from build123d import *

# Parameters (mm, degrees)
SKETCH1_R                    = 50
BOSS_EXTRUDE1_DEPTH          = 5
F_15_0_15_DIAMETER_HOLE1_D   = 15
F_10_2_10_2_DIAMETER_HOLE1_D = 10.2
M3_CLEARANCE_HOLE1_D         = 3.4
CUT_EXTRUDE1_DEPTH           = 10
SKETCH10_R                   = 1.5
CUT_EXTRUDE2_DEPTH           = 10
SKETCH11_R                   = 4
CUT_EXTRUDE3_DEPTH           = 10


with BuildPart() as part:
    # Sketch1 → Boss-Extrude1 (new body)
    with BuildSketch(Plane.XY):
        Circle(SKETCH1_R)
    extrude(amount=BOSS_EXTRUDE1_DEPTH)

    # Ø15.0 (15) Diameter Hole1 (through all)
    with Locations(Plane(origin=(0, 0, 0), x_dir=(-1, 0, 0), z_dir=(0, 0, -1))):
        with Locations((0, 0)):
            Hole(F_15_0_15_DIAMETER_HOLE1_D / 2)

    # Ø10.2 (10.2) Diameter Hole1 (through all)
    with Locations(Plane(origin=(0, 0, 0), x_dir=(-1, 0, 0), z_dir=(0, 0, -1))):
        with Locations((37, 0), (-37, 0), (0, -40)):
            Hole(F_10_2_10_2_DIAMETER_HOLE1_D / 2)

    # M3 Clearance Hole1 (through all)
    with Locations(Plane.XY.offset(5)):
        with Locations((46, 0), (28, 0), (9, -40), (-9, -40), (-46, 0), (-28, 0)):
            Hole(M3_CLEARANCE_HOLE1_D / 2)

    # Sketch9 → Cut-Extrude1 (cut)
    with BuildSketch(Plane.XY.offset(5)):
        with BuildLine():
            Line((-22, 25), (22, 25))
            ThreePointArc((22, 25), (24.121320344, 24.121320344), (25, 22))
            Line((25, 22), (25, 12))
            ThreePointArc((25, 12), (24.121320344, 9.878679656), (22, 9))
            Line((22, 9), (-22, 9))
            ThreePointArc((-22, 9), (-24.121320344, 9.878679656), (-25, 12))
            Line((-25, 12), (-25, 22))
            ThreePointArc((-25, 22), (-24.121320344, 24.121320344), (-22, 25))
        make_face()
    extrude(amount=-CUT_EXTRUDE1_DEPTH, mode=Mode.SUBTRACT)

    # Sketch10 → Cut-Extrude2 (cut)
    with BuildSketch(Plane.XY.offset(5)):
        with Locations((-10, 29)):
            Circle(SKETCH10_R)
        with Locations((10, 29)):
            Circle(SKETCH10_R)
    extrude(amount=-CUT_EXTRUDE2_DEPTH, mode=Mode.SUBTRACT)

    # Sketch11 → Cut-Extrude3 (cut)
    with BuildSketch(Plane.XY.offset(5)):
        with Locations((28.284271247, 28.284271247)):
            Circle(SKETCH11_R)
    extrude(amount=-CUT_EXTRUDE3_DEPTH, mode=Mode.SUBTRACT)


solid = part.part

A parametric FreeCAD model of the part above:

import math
import FreeCAD as App
import Part
import Sketcher

V = App.Vector

doc = App.newDocument("Part")
body = doc.addObject("PartDesign::Body", "Body")

sketch1 = doc.addObject("Sketcher::SketchObject", "Sketch")
body.addObject(sketch1)
sketch1.AttachmentSupport = (doc.XY_Plane, [""])
sketch1.MapMode = "FlatFace"
sketch1.addGeometry(Part.Circle(V(0, 0, 0), V(0, 0, 1), 50), False)
sketch1.addConstraint([
    Sketcher.Constraint("Coincident", 0, 3, -1, 1),
    Sketcher.Constraint("Diameter", 0, 100.0),
])
pad1 = doc.addObject("PartDesign::Pad", "Pad")
body.addObject(pad1)
pad1.Profile = sketch1
pad1.Length = 5

sketch2 = doc.addObject("Sketcher::SketchObject", "Sketch001")
body.addObject(sketch2)
sketch2.AttachmentSupport = (doc.XY_Plane, [""])
sketch2.MapMode = "FlatFace"
sketch2.addGeometry(Part.Circle(V(0, 0, 0), V(0, 0, 1), 8), False)
sketch2.addConstraint([
    Sketcher.Constraint("Coincident", 0, 3, -1, 1),
    Sketcher.Constraint("Diameter", 0, 15.0),
])
doc.recompute()
hole = doc.addObject("PartDesign::Hole", "Hole")
body.addObject(hole)
hole.Profile = sketch2
hole.ThreadType = "None"
hole.Diameter = 15
hole.DepthType = "ThroughAll"
hole.Reversed = True

sketch3 = doc.addObject("Sketcher::SketchObject", "Sketch002")
body.addObject(sketch3)
sketch3.AttachmentSupport = (doc.XY_Plane, [""])
sketch3.MapMode = "FlatFace"
sketch3.addGeometry([
    Part.Circle(V(-37, 0, 0), V(0, 0, 1), 5),
    Part.Circle(V(37, 0, 0), V(0, 0, 1), 5),
    Part.Circle(V(0, -40, 0), V(0, 0, 1), 5),
], False)
sketch3.addConstraint([
    Sketcher.Constraint("Equal", 0, 1),
    Sketcher.Constraint("Equal", 1, 2),
    Sketcher.Constraint("Symmetric", 0, 3, 1, 3, -1, 1),
    Sketcher.Constraint("PointOnObject", 0, 3, -1),
    Sketcher.Constraint("PointOnObject", 2, 3, -2),
    Sketcher.Constraint("Diameter", 0, 10.2),
    Sketcher.Constraint("DistanceX", 0, 3, -1, 1, 37.0),
    Sketcher.Constraint("DistanceY", 2, 3, -1, 1, 40.0),
])
doc.recompute()
hole2 = doc.addObject("PartDesign::Hole", "Hole001")
body.addObject(hole2)
hole2.Profile = sketch3
hole2.ThreadType = "None"
hole2.Diameter = 10.2
hole2.DepthType = "ThroughAll"
hole2.Reversed = True

sketch4 = doc.addObject("Sketcher::SketchObject", "Sketch003")
body.addObject(sketch4)
sketch4.AttachmentSupport = (doc.XY_Plane, [""])
sketch4.MapMode = "FlatFace"
sketch4.AttachmentOffset = App.Placement(V(0, 0, 5), App.Rotation())
sketch4.addGeometry([
    Part.Circle(V(46, 0, 0), V(0, 0, 1), 1.7),
    Part.Circle(V(28, 0, 0), V(0, 0, 1), 1.7),
    Part.Circle(V(9, -40, 0), V(0, 0, 1), 1.7),
    Part.Circle(V(-9, -40, 0), V(0, 0, 1), 1.7),
    Part.Circle(V(-46, 0, 0), V(0, 0, 1), 1.7),
    Part.Circle(V(-28, 0, 0), V(0, 0, 1), 1.7),
], False)
sketch4.addConstraint([
    Sketcher.Constraint("Equal", 0, 1),
    Sketcher.Constraint("Equal", 1, 2),
    Sketcher.Constraint("Equal", 2, 3),
    Sketcher.Constraint("Equal", 3, 4),
    Sketcher.Constraint("Equal", 4, 5),
    Sketcher.Constraint("Symmetric", 0, 3, 4, 3, -1, 1),
    Sketcher.Constraint("Symmetric", 1, 3, 5, 3, -1, 1),
    Sketcher.Constraint("Symmetric", 2, 3, 3, 3, -2),
    Sketcher.Constraint("PointOnObject", 0, 3, -1),
    Sketcher.Constraint("PointOnObject", 1, 3, -1),
    Sketcher.Constraint("Diameter", 0, 3.4),
    Sketcher.Constraint("DistanceX", -1, 1, 0, 3, 46.0),
    Sketcher.Constraint("DistanceX", -1, 1, 1, 3, 28.0),
    Sketcher.Constraint("DistanceX", -1, 1, 2, 3, 9.0),
    Sketcher.Constraint("DistanceY", 2, 3, -1, 1, 40.0),
])
doc.recompute()
hole3 = doc.addObject("PartDesign::Hole", "Hole002")
body.addObject(hole3)
hole3.Profile = sketch4
hole3.ThreadType = "None"
hole3.Diameter = 3.4
hole3.DepthType = "ThroughAll"

sketch5 = doc.addObject("Sketcher::SketchObject", "Sketch004")
body.addObject(sketch5)
sketch5.AttachmentSupport = (doc.XY_Plane, [""])
sketch5.MapMode = "FlatFace"
sketch5.AttachmentOffset = App.Placement(V(0, 0, 5), App.Rotation())
sketch5.addGeometry([
    Part.LineSegment(V(22, 25, 0), V(-22, 25, 0)),
    Part.ArcOfCircle(Part.Circle(V(-22, 22, 0), V(0, 0, 1), 3), math.radians(90), math.radians(180)),
    Part.LineSegment(V(-25, 22, 0), V(-25, 12, 0)),
    Part.ArcOfCircle(Part.Circle(V(-22, 12, 0), V(0, 0, 1), 3), math.radians(180), math.radians(270)),
    Part.LineSegment(V(-22, 9, 0), V(22, 9, 0)),
    Part.ArcOfCircle(Part.Circle(V(22, 12, 0), V(0, 0, 1), 3), math.radians(-90), math.radians(0)),
    Part.LineSegment(V(25, 12, 0), V(25, 22, 0)),
    Part.ArcOfCircle(Part.Circle(V(22, 22, 0), V(0, 0, 1), 3), math.radians(0), math.radians(90)),
], False)
sketch5.addConstraint([
    Sketcher.Constraint("Tangent", 0, 2, 1, 1),
    Sketcher.Constraint("Tangent", 1, 2, 2, 1),
    Sketcher.Constraint("Tangent", 2, 2, 3, 1),
    Sketcher.Constraint("Tangent", 3, 2, 4, 1),
    Sketcher.Constraint("Tangent", 4, 2, 5, 1),
    Sketcher.Constraint("Tangent", 5, 2, 6, 1),
    Sketcher.Constraint("Tangent", 6, 2, 7, 1),
    Sketcher.Constraint("Tangent", 7, 2, 0, 1),
    Sketcher.Constraint("Horizontal", 0),
    Sketcher.Constraint("Vertical", 2),
    Sketcher.Constraint("Horizontal", 4),
    Sketcher.Constraint("Vertical", 6),
    Sketcher.Constraint("Equal", 1, 3),
    Sketcher.Constraint("Equal", 3, 5),
    Sketcher.Constraint("Equal", 5, 7),
    Sketcher.Constraint("Radius", 1, 3.0),
    Sketcher.Constraint("DistanceX", 0, 2, 0, 1, 44.0),
    Sketcher.Constraint("DistanceY", 2, 2, 2, 1, 10.0),
    Sketcher.Constraint("DistanceX", 1, 3, -1, 1, 22.0),
    Sketcher.Constraint("DistanceY", -1, 1, 1, 3, 22.0),
])
pocket1 = doc.addObject("PartDesign::Pocket", "Pocket")
body.addObject(pocket1)
pocket1.Profile = sketch5
pocket1.Length = 10

sketch6 = doc.addObject("Sketcher::SketchObject", "Sketch005")
body.addObject(sketch6)
sketch6.AttachmentSupport = (doc.XY_Plane, [""])
sketch6.MapMode = "FlatFace"
sketch6.AttachmentOffset = App.Placement(V(0, 0, 5), App.Rotation())
sketch6.addGeometry([
    Part.Circle(V(-10, 29, 0), V(0, 0, 1), 1.5),
    Part.Circle(V(10, 29, 0), V(0, 0, 1), 1.5),
], False)
sketch6.addConstraint([
    Sketcher.Constraint("Equal", 0, 1),
    Sketcher.Constraint("Symmetric", 0, 3, 1, 3, -2),
    Sketcher.Constraint("Diameter", 0, 3.0),
    Sketcher.Constraint("DistanceX", 0, 3, -1, 1, 10.0),
    Sketcher.Constraint("DistanceY", -1, 1, 0, 3, 29.0),
])
pocket2 = doc.addObject("PartDesign::Pocket", "Pocket001")
body.addObject(pocket2)
pocket2.Profile = sketch6
pocket2.Length = 10

sketch7 = doc.addObject("Sketcher::SketchObject", "Sketch006")
body.addObject(sketch7)
sketch7.AttachmentSupport = (doc.XY_Plane, [""])
sketch7.MapMode = "FlatFace"
sketch7.AttachmentOffset = App.Placement(V(0, 0, 5), App.Rotation())
sketch7.addGeometry(Part.Circle(V(28.3, 28.3, 0), V(0, 0, 1), 4), False)
sketch7.addConstraint([
    Sketcher.Constraint("Diameter", 0, 8.0),
    Sketcher.Constraint("DistanceX", -1, 1, 0, 3, 28.284271),
    Sketcher.Constraint("DistanceY", -1, 1, 0, 3, 28.284271),
])
pocket3 = doc.addObject("PartDesign::Pocket", "Pocket002")
body.addObject(pocket3)
pocket3.Profile = sketch7
pocket3.Length = 10

doc.recompute()
